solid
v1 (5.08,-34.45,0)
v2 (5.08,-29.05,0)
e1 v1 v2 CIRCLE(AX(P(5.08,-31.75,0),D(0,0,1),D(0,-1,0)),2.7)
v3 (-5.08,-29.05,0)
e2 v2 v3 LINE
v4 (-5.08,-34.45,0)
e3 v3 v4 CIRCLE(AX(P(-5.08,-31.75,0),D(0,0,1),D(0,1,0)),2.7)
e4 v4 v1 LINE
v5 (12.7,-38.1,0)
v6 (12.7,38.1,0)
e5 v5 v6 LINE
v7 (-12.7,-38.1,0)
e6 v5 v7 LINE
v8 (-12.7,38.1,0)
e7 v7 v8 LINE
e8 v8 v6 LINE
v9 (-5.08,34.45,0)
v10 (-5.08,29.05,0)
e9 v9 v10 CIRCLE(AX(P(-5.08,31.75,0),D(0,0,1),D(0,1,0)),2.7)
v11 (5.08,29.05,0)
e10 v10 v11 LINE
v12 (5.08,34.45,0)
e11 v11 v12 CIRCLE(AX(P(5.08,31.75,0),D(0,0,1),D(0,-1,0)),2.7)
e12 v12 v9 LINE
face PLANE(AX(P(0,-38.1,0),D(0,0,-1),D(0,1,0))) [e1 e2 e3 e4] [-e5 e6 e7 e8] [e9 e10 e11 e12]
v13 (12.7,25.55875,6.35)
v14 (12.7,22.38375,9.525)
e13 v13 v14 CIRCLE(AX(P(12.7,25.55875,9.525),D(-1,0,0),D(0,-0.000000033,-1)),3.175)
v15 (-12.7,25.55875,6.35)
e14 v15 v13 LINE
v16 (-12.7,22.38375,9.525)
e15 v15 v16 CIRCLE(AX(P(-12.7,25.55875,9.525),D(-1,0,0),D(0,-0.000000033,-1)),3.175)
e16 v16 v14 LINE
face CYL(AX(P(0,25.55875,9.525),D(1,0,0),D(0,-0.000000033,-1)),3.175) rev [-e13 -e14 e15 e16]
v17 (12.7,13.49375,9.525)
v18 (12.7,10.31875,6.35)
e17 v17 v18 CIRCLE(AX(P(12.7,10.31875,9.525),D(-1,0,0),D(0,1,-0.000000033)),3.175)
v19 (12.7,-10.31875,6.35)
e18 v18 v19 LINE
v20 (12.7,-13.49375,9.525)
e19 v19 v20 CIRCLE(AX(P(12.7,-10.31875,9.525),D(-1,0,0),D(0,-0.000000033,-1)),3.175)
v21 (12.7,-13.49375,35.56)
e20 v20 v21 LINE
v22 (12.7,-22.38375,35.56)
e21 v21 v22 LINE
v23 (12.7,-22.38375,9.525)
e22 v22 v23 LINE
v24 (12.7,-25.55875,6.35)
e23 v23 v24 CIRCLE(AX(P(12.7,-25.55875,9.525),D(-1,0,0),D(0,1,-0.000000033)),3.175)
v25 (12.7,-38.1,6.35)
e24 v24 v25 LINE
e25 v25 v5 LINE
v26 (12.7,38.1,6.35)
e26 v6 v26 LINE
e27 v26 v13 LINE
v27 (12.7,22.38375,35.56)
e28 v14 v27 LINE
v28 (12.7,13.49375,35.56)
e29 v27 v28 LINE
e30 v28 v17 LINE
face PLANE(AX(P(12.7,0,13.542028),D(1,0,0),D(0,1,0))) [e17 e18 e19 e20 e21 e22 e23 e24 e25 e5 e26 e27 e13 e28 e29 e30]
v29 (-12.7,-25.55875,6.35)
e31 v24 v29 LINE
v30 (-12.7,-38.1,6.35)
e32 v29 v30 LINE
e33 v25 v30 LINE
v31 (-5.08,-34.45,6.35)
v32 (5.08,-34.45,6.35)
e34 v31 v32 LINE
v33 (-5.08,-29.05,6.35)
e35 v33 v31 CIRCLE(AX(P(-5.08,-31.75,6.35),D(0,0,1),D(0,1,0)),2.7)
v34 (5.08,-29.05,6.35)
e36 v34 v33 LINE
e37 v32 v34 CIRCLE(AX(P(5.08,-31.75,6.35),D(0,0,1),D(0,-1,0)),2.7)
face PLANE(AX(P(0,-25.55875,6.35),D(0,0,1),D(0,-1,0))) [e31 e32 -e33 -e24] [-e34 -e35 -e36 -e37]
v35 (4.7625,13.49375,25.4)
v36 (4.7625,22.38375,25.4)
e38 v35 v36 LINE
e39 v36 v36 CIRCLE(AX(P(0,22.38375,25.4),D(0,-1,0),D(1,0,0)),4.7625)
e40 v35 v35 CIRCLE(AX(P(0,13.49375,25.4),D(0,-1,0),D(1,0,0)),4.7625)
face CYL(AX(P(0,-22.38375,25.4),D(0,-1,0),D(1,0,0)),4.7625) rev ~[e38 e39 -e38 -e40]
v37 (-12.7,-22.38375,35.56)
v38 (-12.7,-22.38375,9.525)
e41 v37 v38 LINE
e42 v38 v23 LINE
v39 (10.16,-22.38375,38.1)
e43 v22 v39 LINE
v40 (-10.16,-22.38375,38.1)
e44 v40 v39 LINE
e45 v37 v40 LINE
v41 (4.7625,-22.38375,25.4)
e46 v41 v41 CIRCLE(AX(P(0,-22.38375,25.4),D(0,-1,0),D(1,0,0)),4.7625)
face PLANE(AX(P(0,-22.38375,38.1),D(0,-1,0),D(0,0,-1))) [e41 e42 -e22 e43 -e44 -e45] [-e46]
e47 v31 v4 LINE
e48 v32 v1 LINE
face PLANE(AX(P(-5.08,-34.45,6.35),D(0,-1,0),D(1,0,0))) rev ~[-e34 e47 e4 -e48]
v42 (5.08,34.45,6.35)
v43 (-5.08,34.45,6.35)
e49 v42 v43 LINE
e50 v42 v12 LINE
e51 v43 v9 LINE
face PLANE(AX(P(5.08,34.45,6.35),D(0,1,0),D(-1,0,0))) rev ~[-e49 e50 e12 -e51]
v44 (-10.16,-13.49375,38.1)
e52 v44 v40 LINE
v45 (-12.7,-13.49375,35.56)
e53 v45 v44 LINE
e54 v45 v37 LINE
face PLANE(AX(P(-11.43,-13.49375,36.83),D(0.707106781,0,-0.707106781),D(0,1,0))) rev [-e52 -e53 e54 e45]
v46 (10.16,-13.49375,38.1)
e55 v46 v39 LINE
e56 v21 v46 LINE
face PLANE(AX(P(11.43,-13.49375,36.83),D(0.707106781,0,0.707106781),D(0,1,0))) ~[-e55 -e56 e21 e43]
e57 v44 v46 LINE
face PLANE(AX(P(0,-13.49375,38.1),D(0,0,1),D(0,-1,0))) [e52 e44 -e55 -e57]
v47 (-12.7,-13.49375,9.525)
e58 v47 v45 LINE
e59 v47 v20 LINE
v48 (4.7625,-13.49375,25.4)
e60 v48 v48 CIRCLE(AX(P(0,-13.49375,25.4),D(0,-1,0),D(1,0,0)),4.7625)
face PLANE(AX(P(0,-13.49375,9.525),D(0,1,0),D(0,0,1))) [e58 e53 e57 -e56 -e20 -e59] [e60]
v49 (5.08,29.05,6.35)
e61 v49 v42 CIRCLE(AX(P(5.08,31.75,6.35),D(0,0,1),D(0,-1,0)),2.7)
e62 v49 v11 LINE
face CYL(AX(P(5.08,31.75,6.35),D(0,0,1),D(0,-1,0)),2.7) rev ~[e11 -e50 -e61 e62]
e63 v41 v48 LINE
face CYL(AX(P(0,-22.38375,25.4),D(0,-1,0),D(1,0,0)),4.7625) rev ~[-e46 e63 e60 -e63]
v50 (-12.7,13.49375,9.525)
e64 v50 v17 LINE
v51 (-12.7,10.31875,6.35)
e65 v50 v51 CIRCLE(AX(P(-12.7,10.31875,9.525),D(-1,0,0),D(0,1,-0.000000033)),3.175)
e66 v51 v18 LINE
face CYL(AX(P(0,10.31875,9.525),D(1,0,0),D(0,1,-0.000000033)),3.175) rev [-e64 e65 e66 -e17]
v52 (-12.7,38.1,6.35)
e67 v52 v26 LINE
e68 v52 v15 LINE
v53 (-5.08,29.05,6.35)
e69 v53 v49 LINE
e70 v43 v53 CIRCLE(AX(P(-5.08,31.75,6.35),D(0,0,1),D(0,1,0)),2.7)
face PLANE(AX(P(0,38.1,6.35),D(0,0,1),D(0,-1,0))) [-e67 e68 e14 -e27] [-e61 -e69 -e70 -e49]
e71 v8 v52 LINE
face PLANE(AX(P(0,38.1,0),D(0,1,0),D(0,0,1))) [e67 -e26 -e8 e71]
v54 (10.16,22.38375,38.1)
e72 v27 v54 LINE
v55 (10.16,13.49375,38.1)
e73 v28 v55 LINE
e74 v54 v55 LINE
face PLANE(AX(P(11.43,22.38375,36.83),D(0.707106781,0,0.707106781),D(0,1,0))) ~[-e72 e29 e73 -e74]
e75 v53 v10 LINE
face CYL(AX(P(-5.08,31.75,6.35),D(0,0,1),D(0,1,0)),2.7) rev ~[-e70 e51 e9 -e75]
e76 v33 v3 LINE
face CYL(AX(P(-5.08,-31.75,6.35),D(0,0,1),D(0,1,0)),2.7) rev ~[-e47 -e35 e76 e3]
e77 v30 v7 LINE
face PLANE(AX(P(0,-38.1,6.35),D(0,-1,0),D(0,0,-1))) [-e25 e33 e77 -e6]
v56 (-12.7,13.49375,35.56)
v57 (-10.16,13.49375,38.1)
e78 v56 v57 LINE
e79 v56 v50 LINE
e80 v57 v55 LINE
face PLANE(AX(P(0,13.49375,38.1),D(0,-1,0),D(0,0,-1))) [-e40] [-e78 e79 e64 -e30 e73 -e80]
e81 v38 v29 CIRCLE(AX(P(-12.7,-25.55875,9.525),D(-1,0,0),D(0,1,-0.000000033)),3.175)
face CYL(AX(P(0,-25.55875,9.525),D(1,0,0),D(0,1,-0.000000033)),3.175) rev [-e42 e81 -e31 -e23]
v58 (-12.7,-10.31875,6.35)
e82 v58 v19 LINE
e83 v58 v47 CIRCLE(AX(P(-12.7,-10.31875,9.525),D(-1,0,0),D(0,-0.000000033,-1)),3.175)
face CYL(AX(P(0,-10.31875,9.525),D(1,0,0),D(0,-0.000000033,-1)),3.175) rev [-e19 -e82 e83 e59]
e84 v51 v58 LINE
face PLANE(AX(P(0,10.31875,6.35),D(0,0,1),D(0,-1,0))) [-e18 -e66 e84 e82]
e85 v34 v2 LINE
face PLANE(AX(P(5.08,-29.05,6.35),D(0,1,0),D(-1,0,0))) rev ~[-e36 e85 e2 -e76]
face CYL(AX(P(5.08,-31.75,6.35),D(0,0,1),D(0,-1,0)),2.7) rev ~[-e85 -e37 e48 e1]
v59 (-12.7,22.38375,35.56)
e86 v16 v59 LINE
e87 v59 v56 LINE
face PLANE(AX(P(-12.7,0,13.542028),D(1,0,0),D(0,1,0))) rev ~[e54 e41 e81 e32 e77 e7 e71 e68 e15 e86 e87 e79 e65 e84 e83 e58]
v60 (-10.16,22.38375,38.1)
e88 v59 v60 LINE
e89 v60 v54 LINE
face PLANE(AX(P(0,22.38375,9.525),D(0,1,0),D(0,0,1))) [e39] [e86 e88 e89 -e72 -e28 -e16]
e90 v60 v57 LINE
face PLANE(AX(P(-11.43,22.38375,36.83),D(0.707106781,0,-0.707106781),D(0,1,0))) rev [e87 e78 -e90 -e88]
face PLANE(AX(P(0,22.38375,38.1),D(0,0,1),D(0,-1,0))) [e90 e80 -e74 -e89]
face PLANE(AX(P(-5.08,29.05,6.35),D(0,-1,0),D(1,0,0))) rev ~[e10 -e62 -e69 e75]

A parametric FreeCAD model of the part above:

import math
import FreeCAD as App
import Part
import Sketcher
Q = App.Units.Quantity


def edges_at(feature, points):
    """Names of the edges that pass closest to the given points."""
    edges = feature.Shape.Edges
    near = lambda p: min(range(len(edges)), key=lambda i: edges[i].distToShape(Part.Vertex(*p))[0])
    return sorted({f"Edge{near(p) + 1}" for p in points})

doc = App.newDocument("Part")
body = doc.addObject("PartDesign::Body", "Body")

# Sketch on YZ plane
sketch1 = body.newObject("Sketcher::SketchObject", "Sketch")
sketch1.AttachmentSupport = (doc.getObject("YZ_Plane"), [""])
sketch1.MapMode = "FlatFace"
sketch1.addGeometry(Part.LineSegment(App.Vector(-38.1, 0, 0), App.Vector(38.1, 0, 0)), False)
sketch1.addGeometry(Part.LineSegment(App.Vector(38.1, 0, 0), App.Vector(38.1, 6.35, 0)), False)
sketch1.addGeometry(Part.LineSegment(App.Vector(38.1, 6.35, 0), App.Vector(25.55875, 6.35, 0)), False)
sketch1.addGeometry(Part.ArcOfCircle(Part.Circle(App.Vector(25.55875, 9.525, 0), App.Vector(0, 0, 1), 3.175), math.radians(-179.999998), math.radians(-90.000002)), False)
sketch1.addGeometry(Part.LineSegment(App.Vector(22.38375, 9.525, 0), App.Vector(22.38375, 38.1, 0)), False)
sketch1.addGeometry(Part.LineSegment(App.Vector(22.38375, 38.1, 0), App.Vector(13.49375, 38.1, 0)), False)
sketch1.addGeometry(Part.LineSegment(App.Vector(13.49375, 38.1, 0), App.Vector(13.49375, 9.525, 0)), False)
sketch1.addGeometry(Part.ArcOfCircle(Part.Circle(App.Vector(10.31875, 9.525, 0), App.Vector(0, 0, 1), 3.175), math.radians(-89.999998), math.radians(-0.000002)), False)
sketch1.addGeometry(Part.LineSegment(App.Vector(10.31875, 6.35, 0), App.Vector(-10.31875, 6.35, 0)), False)
sketch1.addGeometry(Part.ArcOfCircle(Part.Circle(App.Vector(-10.31875, 9.525, 0), App.Vector(0, 0, 1), 3.175), math.radians(-179.999998), math.radians(-90.000002)), False)
sketch1.addGeometry(Part.LineSegment(App.Vector(-13.49375, 9.525, 0), App.Vector(-13.49375, 38.1, 0)), False)
sketch1.addGeometry(Part.LineSegment(App.Vector(-13.49375, 38.1, 0), App.Vector(-22.38375, 38.1, 0)), False)
sketch1.addGeometry(Part.LineSegment(App.Vector(-22.38375, 38.1, 0), App.Vector(-22.38375, 9.525, 0)), False)
sketch1.addGeometry(Part.ArcOfCircle(Part.Circle(App.Vector(-25.55875, 9.525, 0), App.Vector(0, 0, 1), 3.175), math.radians(-89.999998), math.radians(-0.000002)), False)
sketch1.addGeometry(Part.LineSegment(App.Vector(-25.55875, 6.35, 0), App.Vector(-38.1, 6.35, 0)), False)
sketch1.addGeometry(Part.LineSegment(App.Vector(-38.1, 6.35, 0), App.Vector(-38.1, 0, 0)), False)
sketch1.addConstraint(Sketcher.Constraint("Coincident", 0, 2, 1, 1))
sketch1.addConstraint(Sketcher.Constraint("Coincident", 1, 2, 2, 1))
sketch1.addConstraint(Sketcher.Constraint("Tangent", 2, 2, 3, 2))
sketch1.addConstraint(Sketcher.Constraint("Tangent", 3, 1, 4, 1))
sketch1.addConstraint(Sketcher.Constraint("Coincident", 4, 2, 5, 1))
sketch1.addConstraint(Sketcher.Constraint("Coincident", 5, 2, 6, 1))
sketch1.addConstraint(Sketcher.Constraint("Tangent", 6, 2, 7, 2))
sketch1.addConstraint(Sketcher.Constraint("Tangent", 7, 1, 8, 1))
sketch1.addConstraint(Sketcher.Constraint("Tangent", 8, 2, 9, 2))
sketch1.addConstraint(Sketcher.Constraint("Tangent", 9, 1, 10, 1))
sketch1.addConstraint(Sketcher.Constraint("Coincident", 10, 2, 11, 1))
sketch1.addConstraint(Sketcher.Constraint("Coincident", 11, 2, 12, 1))
sketch1.addConstraint(Sketcher.Constraint("Tangent", 12, 2, 13, 2))
sketch1.addConstraint(Sketcher.Constraint("Tangent", 13, 1, 14, 1))
sketch1.addConstraint(Sketcher.Constraint("Coincident", 14, 2, 15, 1))
sketch1.addConstraint(Sketcher.Constraint("Coincident", 15, 2, 0, 1))
sketch1.addConstraint(Sketcher.Constraint("Horizontal", 0))
sketch1.addConstraint(Sketcher.Constraint("Vertical", 1))
sketch1.addConstraint(Sketcher.Constraint("Horizontal", 2))
sketch1.addConstraint(Sketcher.Constraint("Vertical", 4))
sketch1.addConstraint(Sketcher.Constraint("Horizontal", 5))
sketch1.addConstraint(Sketcher.Constraint("Vertical", 6))
sketch1.addConstraint(Sketcher.Constraint("Horizontal", 8))
sketch1.addConstraint(Sketcher.Constraint("Vertical", 10))
sketch1.addConstraint(Sketcher.Constraint("Horizontal", 11))
sketch1.addConstraint(Sketcher.Constraint("Vertical", 12))
sketch1.addConstraint(Sketcher.Constraint("Horizontal", 14))
sketch1.addConstraint(Sketcher.Constraint("Vertical", 15))
sketch1.addConstraint(Sketcher.Constraint("Equal", 3, 7))
sketch1.addConstraint(Sketcher.Constraint("Equal", 7, 9))
sketch1.addConstraint(Sketcher.Constraint("Equal", 9, 13))
sketch1.addConstraint(Sketcher.Constraint("Symmetric", 0, 2, 15, 2, -1, 1))
sketch1.addConstraint(Sketcher.Constraint("Symmetric", 3, 3, 13, 3, -2))
sketch1.addConstraint(Sketcher.Constraint("Symmetric", 5, 2, 10, 2, -2))
sketch1.addConstraint(Sketcher.Constraint("Horizontal", 3, 3, 7, 3))
sketch1.addConstraint(Sketcher.Constraint("DistanceX", 0, 1, 0, 2, Q("3 in")))
sketch1.addConstraint(Sketcher.Constraint("Radius", 3, Q("0.125 in")))
sketch1.addConstraint(Sketcher.Constraint("DistanceX", 5, 2, 5, 1, Q("0.35 in")))
sketch1.addConstraint(Sketcher.Constraint("DistanceY", 1, 1, 1, 2, Q("0.25 in")))
sketch1.addConstraint(Sketcher.Constraint("DistanceY", -1, 1, 4, 2, Q("1.5 in")))
sketch1.addConstraint(Sketcher.Constraint("DistanceX", 8, 2, 8, 1, Q("0.8125 in")))
pad1 = body.newObject("PartDesign::Pad", "Pad")
pad1.Profile = sketch1
pad1.Length = Q("1 in")
pad1.Midplane = True

# Sketch on XZ plane
sketch2 = body.newObject("Sketcher::SketchObject", "Sketch001")
sketch2.AttachmentSupport = (doc.getObject("XZ_Plane"), [""])
sketch2.MapMode = "FlatFace"
sketch2.AttachmentOffset = App.Placement(App.Vector(0, 0, 22.38375), App.Rotation())
sketch2.addGeometry(Part.Circle(App.Vector(0, 25.4, 0), App.Vector(0, 0, 1), 4.7625), False)
sketch2.addConstraint(Sketcher.Constraint("PointOnObject", 0, 3, -2))
sketch2.addConstraint(Sketcher.Constraint("Diameter", 0, Q("0.375 in")))
sketch2.addConstraint(Sketcher.Constraint("DistanceY", -1, 1, 0, 3, Q("1 in")))
pocket1 = body.newObject("PartDesign::Pocket", "Pocket")
pocket1.Profile = sketch2
pocket1.Type = "ThroughAll"

# Sketch on XY plane
sketch3 = body.newObject("Sketcher::SketchObject", "Sketch002")
sketch3.AttachmentSupport = (doc.getObject("XY_Plane"), [""])
sketch3.MapMode = "FlatFace"
sketch3.AttachmentOffset = App.Placement(App.Vector(0, 0, 0.25 * 25.4), App.Rotation())
sketch3.addGeometry(Part.ArcOfCircle(Part.Circle(App.Vector(-5.08, 31.75, 0), App.Vector(0, 0, 1), 2.7), math.radians(90), math.radians(270)), False)
sketch3.addGeometry(Part.LineSegment(App.Vector(-5.08, 29.05, 0), App.Vector(5.08, 29.05, 0)), False)
sketch3.addGeometry(Part.ArcOfCircle(Part.Circle(App.Vector(5.08, 31.75, 0), App.Vector(0, 0, 1), 2.7), math.radians(-90), math.radians(90)), False)
sketch3.addGeometry(Part.LineSegment(App.Vector(5.08, 34.45, 0), App.Vector(-5.08, 34.45, 0)), False)
sketch3.addGeometry(Part.ArcOfCircle(Part.Circle(App.Vector(-5.08, -31.75, 0), App.Vector(0, 0, 1), 2.7), math.radians(90), math.radians(270)), False)
sketch3.addGeometry(Part.LineSegment(App.Vector(-5.08, -34.45, 0), App.Vector(5.08, -34.45, 0)), False)
sketch3.addGeometry(Part.ArcOfCircle(Part.Circle(App.Vector(5.08, -31.75, 0), App.Vector(0, 0, 1), 2.7), math.radians(-90), math.radians(90)), False)
sketch3.addGeometry(Part.LineSegment(App.Vector(5.08, -29.05, 0), App.Vector(-5.08, -29.05, 0)), False)
sketch3.addConstraint(Sketcher.Constraint("Tangent", 0, 2, 1, 1))
sketch3.addConstraint(Sketcher.Constraint("Tangent", 1, 2, 2, 1))
sketch3.addConstraint(Sketcher.Constraint("Tangent", 2, 2, 3, 1))
sketch3.addConstraint(Sketcher.Constraint("Tangent", 3, 2, 0, 1))
sketch3.addConstraint(Sketcher.Constraint("Tangent", 4, 2, 5, 1))
sketch3.addConstraint(Sketcher.Constraint("Tangent", 5, 2, 6, 1))
sketch3.addConstraint(Sketcher.Constraint("Tangent", 6, 2, 7, 1))
sketch3.addConstraint(Sketcher.Constraint("Tangent", 7, 2, 4, 1))
sketch3.addConstraint(Sketcher.Constraint("Horizontal", 1))
sketch3.addConstraint(Sketcher.Constraint("Horizontal", 3))
sketch3.addConstraint(Sketcher.Constraint("Horizontal", 5))
sketch3.addConstraint(Sketcher.Constraint("Horizontal", 7))
sketch3.addConstraint(Sketcher.Constraint("Equal", 2, 4))
sketch3.addConstraint(Sketcher.Constraint("Symmetric", 2, 3, 4, 3, -1, 1))
sketch3.addConstraint(Sketcher.Constraint("Vertical", 0, 3, 4, 3))
sketch3.addConstraint(Sketcher.Constraint("Vertical", 2, 3, 6, 3))
sketch3.addConstraint(Sketcher.Constraint("DistanceX", 1, 1, 1, 2, Q("0.4 in")))
sketch3.addConstraint(Sketcher.Constraint("DistanceY", 4, 3, 0, 3, Q("2.5 in")))
sketch3.addConstraint(Sketcher.Constraint("Radius", 0, 2.7))
pocket2 = body.newObject("PartDesign::Pocket", "Pocket001")
pocket2.Profile = sketch3
pocket2.Type = "ThroughAll"
doc.recompute()

chamfer = body.newObject("PartDesign::Chamfer", "Chamfer")
chamfer.Base = (pocket2, edges_at(pocket2, [
    (12.7, -17.939, 38.1),
    (12.7, 17.939, 38.1),
    (-12.7, -17.939, 38.1),
    (-12.7, 17.939, 38.1),
]))
chamfer.Size = Q("0.1 in")

doc.recompute()
